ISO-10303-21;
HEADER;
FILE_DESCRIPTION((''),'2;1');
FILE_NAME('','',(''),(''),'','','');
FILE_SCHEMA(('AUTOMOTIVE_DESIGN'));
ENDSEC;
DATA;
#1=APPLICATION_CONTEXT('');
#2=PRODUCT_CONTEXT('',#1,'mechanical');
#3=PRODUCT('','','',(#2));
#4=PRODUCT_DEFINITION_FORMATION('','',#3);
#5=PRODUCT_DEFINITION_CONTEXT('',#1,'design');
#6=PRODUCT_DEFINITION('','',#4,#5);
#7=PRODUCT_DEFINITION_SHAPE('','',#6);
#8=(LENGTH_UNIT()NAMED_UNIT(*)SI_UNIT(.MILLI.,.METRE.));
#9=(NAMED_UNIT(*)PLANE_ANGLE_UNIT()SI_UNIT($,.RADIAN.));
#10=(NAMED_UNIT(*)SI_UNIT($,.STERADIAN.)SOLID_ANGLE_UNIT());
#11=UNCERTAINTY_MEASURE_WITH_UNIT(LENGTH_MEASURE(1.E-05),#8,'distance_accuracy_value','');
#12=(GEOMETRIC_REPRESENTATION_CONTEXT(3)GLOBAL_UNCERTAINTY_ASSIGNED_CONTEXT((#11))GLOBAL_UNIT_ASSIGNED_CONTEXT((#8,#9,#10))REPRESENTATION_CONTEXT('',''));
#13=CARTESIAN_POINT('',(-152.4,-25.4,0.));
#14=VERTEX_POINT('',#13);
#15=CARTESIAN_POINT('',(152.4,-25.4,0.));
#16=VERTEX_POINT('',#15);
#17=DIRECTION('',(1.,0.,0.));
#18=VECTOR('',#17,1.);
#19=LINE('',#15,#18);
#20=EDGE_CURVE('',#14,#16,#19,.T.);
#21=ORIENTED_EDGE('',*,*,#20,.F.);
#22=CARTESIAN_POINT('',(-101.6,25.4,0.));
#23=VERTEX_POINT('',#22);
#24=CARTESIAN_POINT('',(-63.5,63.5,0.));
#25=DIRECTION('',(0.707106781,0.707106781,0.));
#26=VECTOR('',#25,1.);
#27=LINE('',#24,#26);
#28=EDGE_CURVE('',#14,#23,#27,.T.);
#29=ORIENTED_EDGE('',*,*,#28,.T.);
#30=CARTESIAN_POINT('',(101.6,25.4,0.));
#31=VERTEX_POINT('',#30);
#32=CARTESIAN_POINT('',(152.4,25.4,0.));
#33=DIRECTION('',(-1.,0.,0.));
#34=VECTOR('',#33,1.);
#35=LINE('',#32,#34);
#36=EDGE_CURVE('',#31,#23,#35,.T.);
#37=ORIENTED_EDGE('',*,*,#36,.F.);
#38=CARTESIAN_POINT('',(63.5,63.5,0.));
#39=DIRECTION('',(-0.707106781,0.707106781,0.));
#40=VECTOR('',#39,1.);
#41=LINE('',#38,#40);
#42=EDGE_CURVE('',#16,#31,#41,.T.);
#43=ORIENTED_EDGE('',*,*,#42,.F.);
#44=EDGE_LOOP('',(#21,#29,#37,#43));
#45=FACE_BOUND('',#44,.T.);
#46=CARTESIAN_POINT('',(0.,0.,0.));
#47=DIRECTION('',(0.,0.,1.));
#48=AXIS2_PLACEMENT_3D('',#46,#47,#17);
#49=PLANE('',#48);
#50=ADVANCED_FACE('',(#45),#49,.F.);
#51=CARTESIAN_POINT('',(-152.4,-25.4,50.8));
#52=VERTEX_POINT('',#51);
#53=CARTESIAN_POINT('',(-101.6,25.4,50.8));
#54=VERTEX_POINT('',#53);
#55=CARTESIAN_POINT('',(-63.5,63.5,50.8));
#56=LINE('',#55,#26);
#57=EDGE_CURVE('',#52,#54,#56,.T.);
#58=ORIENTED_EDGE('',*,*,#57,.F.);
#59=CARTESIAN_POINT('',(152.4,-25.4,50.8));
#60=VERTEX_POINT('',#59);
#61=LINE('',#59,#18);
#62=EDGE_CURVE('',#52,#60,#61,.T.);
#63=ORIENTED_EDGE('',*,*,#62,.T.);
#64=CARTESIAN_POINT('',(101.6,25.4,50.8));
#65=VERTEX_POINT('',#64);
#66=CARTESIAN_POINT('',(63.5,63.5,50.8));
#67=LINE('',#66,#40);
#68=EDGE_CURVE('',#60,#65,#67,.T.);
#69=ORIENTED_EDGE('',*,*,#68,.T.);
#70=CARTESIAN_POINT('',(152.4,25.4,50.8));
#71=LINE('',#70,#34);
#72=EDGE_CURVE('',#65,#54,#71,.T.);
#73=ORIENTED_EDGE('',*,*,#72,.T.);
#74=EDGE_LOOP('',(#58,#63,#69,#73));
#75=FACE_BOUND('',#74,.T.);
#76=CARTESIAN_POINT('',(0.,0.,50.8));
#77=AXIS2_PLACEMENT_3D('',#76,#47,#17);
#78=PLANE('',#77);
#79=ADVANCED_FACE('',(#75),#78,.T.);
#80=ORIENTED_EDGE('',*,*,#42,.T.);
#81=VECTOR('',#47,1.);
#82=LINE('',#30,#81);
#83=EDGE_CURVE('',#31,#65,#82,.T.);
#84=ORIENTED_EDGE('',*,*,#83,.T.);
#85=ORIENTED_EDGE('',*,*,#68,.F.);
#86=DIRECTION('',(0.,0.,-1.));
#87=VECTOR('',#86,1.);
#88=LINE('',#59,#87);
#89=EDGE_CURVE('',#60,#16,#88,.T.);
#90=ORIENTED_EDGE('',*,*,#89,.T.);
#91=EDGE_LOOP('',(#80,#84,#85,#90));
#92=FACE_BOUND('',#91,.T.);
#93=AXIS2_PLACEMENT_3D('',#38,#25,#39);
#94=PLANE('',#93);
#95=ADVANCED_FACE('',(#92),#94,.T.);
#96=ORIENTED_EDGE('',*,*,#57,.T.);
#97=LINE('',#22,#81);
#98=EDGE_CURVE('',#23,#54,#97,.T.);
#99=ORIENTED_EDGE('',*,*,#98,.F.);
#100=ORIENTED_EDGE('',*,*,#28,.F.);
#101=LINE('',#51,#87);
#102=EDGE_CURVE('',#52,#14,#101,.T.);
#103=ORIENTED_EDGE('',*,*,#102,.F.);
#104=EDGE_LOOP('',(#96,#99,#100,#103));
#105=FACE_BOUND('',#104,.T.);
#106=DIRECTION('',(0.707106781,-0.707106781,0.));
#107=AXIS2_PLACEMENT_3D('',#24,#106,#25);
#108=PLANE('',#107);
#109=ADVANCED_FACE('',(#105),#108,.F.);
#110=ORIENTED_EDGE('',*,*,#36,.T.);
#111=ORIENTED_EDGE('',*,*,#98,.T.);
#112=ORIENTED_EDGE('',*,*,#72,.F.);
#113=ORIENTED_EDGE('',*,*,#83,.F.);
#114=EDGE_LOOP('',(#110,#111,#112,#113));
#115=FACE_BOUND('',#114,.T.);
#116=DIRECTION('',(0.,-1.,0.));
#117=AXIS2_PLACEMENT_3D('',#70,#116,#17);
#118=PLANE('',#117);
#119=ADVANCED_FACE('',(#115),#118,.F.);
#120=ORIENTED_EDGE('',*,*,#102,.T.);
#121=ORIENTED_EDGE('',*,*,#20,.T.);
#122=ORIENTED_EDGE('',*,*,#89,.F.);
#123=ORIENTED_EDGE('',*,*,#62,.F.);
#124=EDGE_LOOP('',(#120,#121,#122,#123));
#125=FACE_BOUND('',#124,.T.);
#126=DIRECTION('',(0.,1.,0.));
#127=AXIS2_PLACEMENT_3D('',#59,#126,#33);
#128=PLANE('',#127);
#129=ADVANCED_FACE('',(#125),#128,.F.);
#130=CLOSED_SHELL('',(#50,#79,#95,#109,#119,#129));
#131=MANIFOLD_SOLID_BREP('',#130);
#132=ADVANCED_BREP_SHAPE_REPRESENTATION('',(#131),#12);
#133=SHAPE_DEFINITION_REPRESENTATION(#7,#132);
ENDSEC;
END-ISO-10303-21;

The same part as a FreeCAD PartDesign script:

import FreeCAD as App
import Part
import Sketcher

V = App.Vector

doc = App.newDocument("Part")
body = doc.addObject("PartDesign::Body", "Body")

# Sketch on XY plane
sketch1 = body.newObject("Sketcher::SketchObject", "Sketch")
sketch1.AttachmentSupport = (doc.getObject("XY_Plane"), [""])
sketch1.MapMode = "FlatFace"
sketch1.addGeometry([
    Part.LineSegment(V(-152, 25, 0), V(-152, -25, 0)),
    Part.LineSegment(V(-152, -25, 0), V(152, -25, 0)),
    Part.LineSegment(V(152, -25, 0), V(152, 25, 0)),
    Part.LineSegment(V(152, 25, 0), V(-152, 25, 0)),
], False)
sketch1.addConstraint([
    Sketcher.Constraint("Coincident", 0, 2, 1, 1),
    Sketcher.Constraint("Coincident", 1, 2, 2, 1),
    Sketcher.Constraint("Coincident", 2, 2, 3, 1),
    Sketcher.Constraint("Coincident", 3, 2, 0, 1),
    Sketcher.Constraint("Vertical", 0),
    Sketcher.Constraint("Horizontal", 1),
    Sketcher.Constraint("Vertical", 2),
    Sketcher.Constraint("Horizontal", 3),
    Sketcher.Constraint("Symmetric", 0, 2, 2, 2, -1, 1),
    Sketcher.Constraint("DistanceX", 1, 1, 1, 2, 304.8),
    Sketcher.Constraint("DistanceY", 0, 2, 0, 1, 50.8),
])
pad1 = body.newObject("PartDesign::Pad", "Pad")
pad1.Profile = sketch1
pad1.Length = 50.8

# Sketch on XY plane
sketch2 = body.newObject("Sketcher::SketchObject", "Sketch001")
sketch2.AttachmentSupport = (doc.getObject("XY_Plane"), [""])
sketch2.MapMode = "FlatFace"
sketch2.AttachmentOffset = App.Placement(V(0, 0, 50.8), App.Rotation())
sketch2.addGeometry([
    Part.LineSegment(V(-132, 25, 0), V(-152, 25, 0)),  # 0
    Part.LineSegment(V(-152, 25, 0), V(-152, -25, 0)),  # 1
    Part.LineSegment(V(-152, -25, 0), V(-132, 25, 0)),  # 2
    Part.LineSegment(V(152, 25, 0), V(132, 25, 0)),  # 3
    Part.LineSegment(V(132, 25, 0), V(152, -25, 0)),  # 4
    Part.LineSegment(V(152, -25, 0), V(152, 25, 0)),  # 5
], False)
sketch2.addConstraint([
    Sketcher.Constraint("Coincident", 0, 2, 1, 1),
    Sketcher.Constraint("Coincident", 1, 2, 2, 1),
    Sketcher.Constraint("Coincident", 2, 2, 0, 1),
    Sketcher.Constraint("Coincident", 3, 2, 4, 1),
    Sketcher.Constraint("Coincident", 4, 2, 5, 1),
    Sketcher.Constraint("Coincident", 5, 2, 3, 1),
    Sketcher.Constraint("Horizontal", 0),
    Sketcher.Constraint("Vertical", 1),
    Sketcher.Constraint("Horizontal", 3),
    Sketcher.Constraint("Vertical", 5),
    Sketcher.Constraint("Symmetric", 0, 2, 4, 2, -1, 1),
    Sketcher.Constraint("Symmetric", 2, 2, 3, 2, -2),
    Sketcher.Constraint("Horizontal", 1, 2, 4, 2),
    Sketcher.Constraint("DistanceX", 0, 2, 0, 1, 20.0),
    Sketcher.Constraint("DistanceY", 1, 2, 1, 1, 50.8),
    Sketcher.Constraint("DistanceX", 0, 2, -1, 1, 152.4),
])
pocket1 = body.newObject("PartDesign::Pocket", "Pocket")
pocket1.Profile = sketch2
pocket1.Type = "ThroughAll"

# Sketch on XY plane
sketch3 = body.newObject("Sketcher::SketchObject", "Sketch002")
sketch3.AttachmentSupport = (doc.getObject("XY_Plane"), [""])
sketch3.MapMode = "FlatFace"
sketch3.AttachmentOffset = App.Placement(V(0, 0, 50.8), App.Rotation())
sketch3.addGeometry([
    Part.LineSegment(V(-132, 25, 0), V(-152, -25, 0)),  # 0
    Part.LineSegment(V(-152, -25, 0), V(-102, 25, 0)),  # 1
    Part.LineSegment(V(-102, 25, 0), V(-132, 25, 0)),  # 2
    Part.LineSegment(V(132, 25, 0), V(102, 25, 0)),  # 3
    Part.LineSegment(V(102, 25, 0), V(152, -25, 0)),  # 4
    Part.LineSegment(V(152, -25, 0), V(132, 25, 0)),  # 5
], False)
sketch3.addConstraint([
    Sketcher.Constraint("Coincident", 0, 2, 1, 1),
    Sketcher.Constraint("Coincident", 1, 2, 2, 1),
    Sketcher.Constraint("Coincident", 2, 2, 0, 1),
    Sketcher.Constraint("Coincident", 3, 2, 4, 1),
    Sketcher.Constraint("Coincident", 4, 2, 5, 1),
    Sketcher.Constraint("Coincident", 5, 2, 3, 1),
    Sketcher.Constraint("Horizontal", 2),
    Sketcher.Constraint("Horizontal", 3),
    Sketcher.Constraint("Symmetric", 1, 2, 3, 2, -2),
    Sketcher.Constraint("Symmetric", 0, 2, 4, 2, -2),
    Sketcher.Constraint("Perpendicular", 1, 4),
    Sketcher.Constraint("Equal", 2, 3),
    Sketcher.Constraint("DistanceX", 2, 2, 2, 1, 30.8),
    Sketcher.Constraint("DistanceX", 0, 2, 2, 2, 20.0),
    Sketcher.Constraint("DistanceX", 2, 2, 3, 2, 234.0),
    Sketcher.Constraint("DistanceY", 0, 2, -1, 1, 25.4),
])
pocket2 = body.newObject("PartDesign::Pocket", "Pocket001")
pocket2.Profile = sketch3
pocket2.Type = "ThroughAll"

doc.recompute()
